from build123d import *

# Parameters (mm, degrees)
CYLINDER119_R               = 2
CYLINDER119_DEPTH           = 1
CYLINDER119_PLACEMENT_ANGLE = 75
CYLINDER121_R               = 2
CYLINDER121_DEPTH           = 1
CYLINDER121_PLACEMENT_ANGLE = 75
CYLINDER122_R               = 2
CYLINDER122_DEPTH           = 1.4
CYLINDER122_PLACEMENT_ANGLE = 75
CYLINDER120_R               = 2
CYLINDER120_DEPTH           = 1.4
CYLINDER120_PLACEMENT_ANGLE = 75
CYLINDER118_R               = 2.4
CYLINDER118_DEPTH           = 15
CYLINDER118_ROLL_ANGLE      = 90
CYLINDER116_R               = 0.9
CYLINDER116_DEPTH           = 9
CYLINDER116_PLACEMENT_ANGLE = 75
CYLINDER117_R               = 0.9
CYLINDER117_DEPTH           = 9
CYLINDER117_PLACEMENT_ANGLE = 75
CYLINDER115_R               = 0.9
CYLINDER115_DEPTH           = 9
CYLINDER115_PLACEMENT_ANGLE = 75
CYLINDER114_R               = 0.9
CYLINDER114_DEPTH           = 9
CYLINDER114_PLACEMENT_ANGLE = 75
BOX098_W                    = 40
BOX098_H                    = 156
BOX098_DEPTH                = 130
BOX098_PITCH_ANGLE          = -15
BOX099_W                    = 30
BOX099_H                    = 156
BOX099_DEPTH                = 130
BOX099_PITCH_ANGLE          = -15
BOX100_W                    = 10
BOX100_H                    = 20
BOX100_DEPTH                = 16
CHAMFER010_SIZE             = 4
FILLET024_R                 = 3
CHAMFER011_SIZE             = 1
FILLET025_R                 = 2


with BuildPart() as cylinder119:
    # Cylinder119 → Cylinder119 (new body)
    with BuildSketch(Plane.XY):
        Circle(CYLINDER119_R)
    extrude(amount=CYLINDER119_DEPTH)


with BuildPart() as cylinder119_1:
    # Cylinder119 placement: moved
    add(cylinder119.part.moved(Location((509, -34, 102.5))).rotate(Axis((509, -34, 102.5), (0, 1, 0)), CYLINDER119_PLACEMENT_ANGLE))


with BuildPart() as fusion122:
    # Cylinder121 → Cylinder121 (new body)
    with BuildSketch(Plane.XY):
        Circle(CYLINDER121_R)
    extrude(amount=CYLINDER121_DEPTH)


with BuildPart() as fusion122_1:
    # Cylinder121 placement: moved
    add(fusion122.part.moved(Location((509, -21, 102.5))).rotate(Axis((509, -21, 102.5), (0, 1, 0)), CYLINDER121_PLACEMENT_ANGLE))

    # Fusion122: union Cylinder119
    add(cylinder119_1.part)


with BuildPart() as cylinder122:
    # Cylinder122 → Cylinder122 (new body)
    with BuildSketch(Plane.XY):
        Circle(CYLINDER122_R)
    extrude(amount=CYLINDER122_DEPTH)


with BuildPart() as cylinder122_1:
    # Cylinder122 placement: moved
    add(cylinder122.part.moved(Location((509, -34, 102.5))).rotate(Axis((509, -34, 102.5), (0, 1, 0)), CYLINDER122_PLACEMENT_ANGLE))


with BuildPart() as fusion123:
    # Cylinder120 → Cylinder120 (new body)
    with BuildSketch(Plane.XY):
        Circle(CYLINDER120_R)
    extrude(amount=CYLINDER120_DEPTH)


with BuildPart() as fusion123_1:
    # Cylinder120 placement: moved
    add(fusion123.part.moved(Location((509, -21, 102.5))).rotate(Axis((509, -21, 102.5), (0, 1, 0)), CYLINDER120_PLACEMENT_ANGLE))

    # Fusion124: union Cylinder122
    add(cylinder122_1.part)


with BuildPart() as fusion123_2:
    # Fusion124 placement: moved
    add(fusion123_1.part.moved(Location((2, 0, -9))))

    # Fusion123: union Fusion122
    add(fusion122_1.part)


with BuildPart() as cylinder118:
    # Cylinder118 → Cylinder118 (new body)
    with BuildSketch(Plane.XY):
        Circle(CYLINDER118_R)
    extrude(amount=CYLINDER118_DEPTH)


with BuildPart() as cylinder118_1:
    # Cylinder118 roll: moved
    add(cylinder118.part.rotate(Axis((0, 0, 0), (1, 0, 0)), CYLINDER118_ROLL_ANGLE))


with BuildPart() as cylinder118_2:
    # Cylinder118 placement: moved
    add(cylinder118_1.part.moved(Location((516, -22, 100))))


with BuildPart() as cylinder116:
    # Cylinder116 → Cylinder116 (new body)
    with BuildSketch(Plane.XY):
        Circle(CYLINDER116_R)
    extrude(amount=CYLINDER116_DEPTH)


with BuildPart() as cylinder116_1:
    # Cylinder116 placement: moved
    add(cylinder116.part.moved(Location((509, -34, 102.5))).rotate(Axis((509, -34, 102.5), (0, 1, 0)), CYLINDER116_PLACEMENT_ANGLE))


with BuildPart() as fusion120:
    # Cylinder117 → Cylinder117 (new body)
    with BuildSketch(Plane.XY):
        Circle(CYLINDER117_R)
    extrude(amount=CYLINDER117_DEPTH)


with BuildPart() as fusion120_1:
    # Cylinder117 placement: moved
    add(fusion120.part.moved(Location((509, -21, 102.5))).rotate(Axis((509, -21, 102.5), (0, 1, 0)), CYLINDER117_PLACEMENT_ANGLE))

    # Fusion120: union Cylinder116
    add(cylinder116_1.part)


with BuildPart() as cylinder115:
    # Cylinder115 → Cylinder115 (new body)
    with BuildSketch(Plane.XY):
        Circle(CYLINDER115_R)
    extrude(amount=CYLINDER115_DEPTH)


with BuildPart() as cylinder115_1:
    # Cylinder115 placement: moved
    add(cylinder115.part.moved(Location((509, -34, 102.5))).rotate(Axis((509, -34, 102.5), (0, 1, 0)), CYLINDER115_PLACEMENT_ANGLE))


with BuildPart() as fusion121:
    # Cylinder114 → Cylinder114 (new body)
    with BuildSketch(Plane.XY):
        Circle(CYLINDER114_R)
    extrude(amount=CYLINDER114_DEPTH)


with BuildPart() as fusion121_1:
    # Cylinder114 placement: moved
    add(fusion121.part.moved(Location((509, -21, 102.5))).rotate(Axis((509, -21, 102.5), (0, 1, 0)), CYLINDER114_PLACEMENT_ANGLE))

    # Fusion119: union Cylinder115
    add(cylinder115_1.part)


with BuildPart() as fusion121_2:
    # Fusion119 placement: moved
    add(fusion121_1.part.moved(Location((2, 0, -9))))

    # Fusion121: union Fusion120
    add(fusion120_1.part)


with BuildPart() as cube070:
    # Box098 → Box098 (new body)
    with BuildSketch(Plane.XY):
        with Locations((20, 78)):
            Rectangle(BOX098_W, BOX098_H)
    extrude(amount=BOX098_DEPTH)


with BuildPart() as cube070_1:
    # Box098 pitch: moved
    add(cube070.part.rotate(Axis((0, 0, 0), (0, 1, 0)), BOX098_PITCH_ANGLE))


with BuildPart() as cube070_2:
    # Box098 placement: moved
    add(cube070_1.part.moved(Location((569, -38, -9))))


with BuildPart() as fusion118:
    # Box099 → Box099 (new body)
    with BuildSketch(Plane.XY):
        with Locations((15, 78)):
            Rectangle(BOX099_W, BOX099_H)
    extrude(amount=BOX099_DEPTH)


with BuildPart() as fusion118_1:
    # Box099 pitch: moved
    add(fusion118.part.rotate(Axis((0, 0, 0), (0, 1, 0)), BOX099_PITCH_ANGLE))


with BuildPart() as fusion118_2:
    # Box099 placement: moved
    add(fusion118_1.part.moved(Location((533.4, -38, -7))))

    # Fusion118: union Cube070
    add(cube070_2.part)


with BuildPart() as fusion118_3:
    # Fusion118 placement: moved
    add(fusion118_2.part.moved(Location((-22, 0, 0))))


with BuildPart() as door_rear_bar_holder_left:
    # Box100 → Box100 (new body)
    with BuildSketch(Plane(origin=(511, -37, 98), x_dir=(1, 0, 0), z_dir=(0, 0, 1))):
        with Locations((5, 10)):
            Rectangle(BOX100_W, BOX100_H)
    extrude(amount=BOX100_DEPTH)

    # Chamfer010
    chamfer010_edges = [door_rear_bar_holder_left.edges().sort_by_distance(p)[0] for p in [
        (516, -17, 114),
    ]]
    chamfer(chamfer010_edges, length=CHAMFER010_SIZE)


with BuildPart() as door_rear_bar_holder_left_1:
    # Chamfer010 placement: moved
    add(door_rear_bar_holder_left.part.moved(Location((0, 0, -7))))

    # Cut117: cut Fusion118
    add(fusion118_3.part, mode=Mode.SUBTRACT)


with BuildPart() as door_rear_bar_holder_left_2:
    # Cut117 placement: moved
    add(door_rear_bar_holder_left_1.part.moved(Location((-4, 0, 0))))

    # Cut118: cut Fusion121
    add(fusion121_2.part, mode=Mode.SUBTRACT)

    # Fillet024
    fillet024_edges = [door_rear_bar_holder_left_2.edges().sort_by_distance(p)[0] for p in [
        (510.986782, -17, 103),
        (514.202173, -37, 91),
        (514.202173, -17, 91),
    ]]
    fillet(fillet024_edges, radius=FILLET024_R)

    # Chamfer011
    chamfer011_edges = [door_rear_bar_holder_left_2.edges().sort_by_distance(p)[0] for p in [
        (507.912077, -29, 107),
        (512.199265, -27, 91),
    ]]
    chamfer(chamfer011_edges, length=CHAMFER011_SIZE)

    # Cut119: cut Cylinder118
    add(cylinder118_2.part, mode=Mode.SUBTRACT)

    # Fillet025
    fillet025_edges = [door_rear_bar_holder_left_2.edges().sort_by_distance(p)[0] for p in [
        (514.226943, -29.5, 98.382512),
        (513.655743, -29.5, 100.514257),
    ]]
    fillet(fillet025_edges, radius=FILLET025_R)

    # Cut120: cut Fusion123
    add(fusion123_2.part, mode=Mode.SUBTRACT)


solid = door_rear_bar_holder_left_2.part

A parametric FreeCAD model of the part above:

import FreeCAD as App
import Part
import Sketcher
from FreeCAD import Vector


def edges_at(feature, points):
    """Names of the edges that pass closest to the given points."""
    edges = feature.Shape.Edges
    near = lambda p: min(range(len(edges)), key=lambda i: edges[i].distToShape(Part.Vertex(*p))[0])
    return sorted({f"Edge{near(p) + 1}" for p in points})

doc = App.newDocument("Part")
body = doc.addObject("PartDesign::Body", "Body")

# Sketch on XY plane
sketch1 = doc.addObject("Sketcher::SketchObject", "Sketch")
body.addObject(sketch1)
sketch1.AttachmentSupport = (doc.XY_Plane, [""])
sketch1.MapMode = "FlatFace"
sketch1.addGeometry(Part.Circle(Vector(0, 0, 0), Vector(0, 0, 1), 2), False)
sketch1.addConstraint(Sketcher.Constraint("Coincident", 0, 3, -1, 1))
sketch1.addConstraint(Sketcher.Constraint("Diameter", 0, 4.0))
pad1 = doc.addObject("PartDesign::Pad", "Pad")
body.addObject(pad1)
pad1.Profile = sketch1
pad1.Length = 1
body2 = doc.addObject("PartDesign::Body", "Body001")
doc.recompute()

body.Placement = App.Placement(Vector(509, -34, 102.5), App.Rotation(Vector(0, 1, 0), 75))
boolean = doc.addObject("PartDesign::Boolean", "Boolean")
body2.addObject(boolean)
boolean.Type = "Fuse"
boolean.addObjects([body])
body3 = doc.addObject("PartDesign::Body", "Body002")

# Sketch on XY plane
sketch2 = doc.addObject("Sketcher::SketchObject", "Sketch001")
body3.addObject(sketch2)
sketch2.AttachmentSupport = (doc.getObject("XY_Plane002"), [""])
sketch2.MapMode = "FlatFace"
sketch2.addGeometry(Part.Circle(Vector(0, 0, 0), Vector(0, 0, 1), 2), False)
sketch2.addConstraint(Sketcher.Constraint("Coincident", 0, 3, -1, 1))
sketch2.addConstraint(Sketcher.Constraint("Diameter", 0, 4.0))
pad2 = doc.addObject("PartDesign::Pad", "Pad001")
body3.addObject(pad2)
pad2.Profile = sketch2
pad2.Length = 1
body4 = doc.addObject("PartDesign::Body", "Body003")
body4.AllowCompound = True
doc.recompute()

body3.Placement = App.Placement(Vector(509, -21, 102.5), App.Rotation(Vector(0, 1, 0), 75))
boolean2 = doc.addObject("PartDesign::Boolean", "Boolean001")
body4.addObject(boolean2)
boolean2.Type = "Fuse"
boolean2.addObjects([body3])
doc.recompute()

boolean3 = doc.addObject("PartDesign::Boolean", "Boolean002")
body4.addObject(boolean3)
boolean3.Type = "Fuse"
boolean3.addObjects([body2])
body5 = doc.addObject("PartDesign::Body", "Body004")

# Sketch on XY plane
sketch3 = doc.addObject("Sketcher::SketchObject", "Sketch002")
body5.addObject(sketch3)
sketch3.AttachmentSupport = (doc.getObject("XY_Plane004"), [""])
sketch3.MapMode = "FlatFace"
sketch3.addGeometry(Part.Circle(Vector(0, 0, 0), Vector(0, 0, 1), 2), False)
sketch3.addConstraint(Sketcher.Constraint("Coincident", 0, 3, -1, 1))
sketch3.addConstraint(Sketcher.Constraint("Diameter", 0, 4.0))
pad3 = doc.addObject("PartDesign::Pad", "Pad002")
body5.addObject(pad3)
pad3.Profile = sketch3
pad3.Length = 1.4
body6 = doc.addObject("PartDesign::Body", "Body005")
doc.recompute()

body5.Placement = App.Placement(Vector(509, -34, 102.5), App.Rotation(Vector(0, 1, 0), 75))
boolean4 = doc.addObject("PartDesign::Boolean", "Boolean003")
body6.addObject(boolean4)
boolean4.Type = "Fuse"
boolean4.addObjects([body5])
body7 = doc.addObject("PartDesign::Body", "Body006")

# Sketch on XY plane
sketch4 = doc.addObject("Sketcher::SketchObject", "Sketch003")
body7.addObject(sketch4)
sketch4.AttachmentSupport = (doc.getObject("XY_Plane006"), [""])
sketch4.MapMode = "FlatFace"
sketch4.addGeometry(Part.Circle(Vector(0, 0, 0), Vector(0, 0, 1), 2), False)
sketch4.addConstraint(Sketcher.Constraint("Coincident", 0, 3, -1, 1))
sketch4.addConstraint(Sketcher.Constraint("Diameter", 0, 4.0))
pad4 = doc.addObject("PartDesign::Pad", "Pad003")
body7.addObject(pad4)
pad4.Profile = sketch4
pad4.Length = 1.4
body8 = doc.addObject("PartDesign::Body", "Body007")
body8.AllowCompound = True
doc.recompute()

body7.Placement = App.Placement(Vector(509, -21, 102.5), App.Rotation(Vector(0, 1, 0), 75))
boolean5 = doc.addObject("PartDesign::Boolean", "Boolean004")
body8.addObject(boolean5)
boolean5.Type = "Fuse"
boolean5.addObjects([body7])
doc.recompute()

boolean6 = doc.addObject("PartDesign::Boolean", "Boolean005")
body8.addObject(boolean6)
boolean6.Type = "Fuse"
boolean6.addObjects([body6])
body9 = doc.addObject("PartDesign::Body", "Body008")
body9.AllowCompound = True
doc.recompute()

body8.Placement = App.Placement(Vector(2, 0, -9), App.Rotation(Vector(0, 0, 1), 0))
boolean7 = doc.addObject("PartDesign::Boolean", "Boolean006")
body9.addObject(boolean7)
boolean7.Type = "Fuse"
boolean7.addObjects([body8])
doc.recompute()

boolean8 = doc.addObject("PartDesign::Boolean", "Boolean007")
body9.addObject(boolean8)
boolean8.Type = "Fuse"
boolean8.addObjects([body4])
body10 = doc.addObject("PartDesign::Body", "Body009")

# Sketch on XY plane
sketch5 = doc.addObject("Sketcher::SketchObject", "Sketch004")
body10.addObject(sketch5)
sketch5.AttachmentSupport = (doc.getObject("XY_Plane009"), [""])
sketch5.MapMode = "FlatFace"
sketch5.addGeometry(Part.Circle(Vector(0, 0, 0), Vector(0, 0, 1), 2.4), False)
sketch5.addConstraint(Sketcher.Constraint("Coincident", 0, 3, -1, 1))
sketch5.addConstraint(Sketcher.Constraint("Diameter", 0, 4.8))
pad5 = doc.addObject("PartDesign::Pad", "Pad004")
body10.addObject(pad5)
pad5.Profile = sketch5
pad5.Length = 15
body11 = doc.addObject("PartDesign::Body", "Body010")
doc.recompute()

body10.Placement = App.Placement(Vector(0, 0, 0), App.Rotation(Vector(1, 0, 0), 90))
boolean9 = doc.addObject("PartDesign::Boolean", "Boolean008")
body11.addObject(boolean9)
boolean9.Type = "Fuse"
boolean9.addObjects([body10])
body12 = doc.addObject("PartDesign::Body", "Body011")
doc.recompute()

body11.Placement = App.Placement(Vector(516, -22, 100), App.Rotation(Vector(0, 0, 1), 0))
boolean10 = doc.addObject("PartDesign::Boolean", "Boolean009")
body12.addObject(boolean10)
boolean10.Type = "Fuse"
boolean10.addObjects([body11])
body13 = doc.addObject("PartDesign::Body", "Body012")

# Sketch on XY plane
sketch6 = doc.addObject("Sketcher::SketchObject", "Sketch005")
body13.addObject(sketch6)
sketch6.AttachmentSupport = (doc.getObject("XY_Plane012"), [""])
sketch6.MapMode = "FlatFace"
sketch6.addGeometry(Part.Circle(Vector(0, 0, 0), Vector(0, 0, 1), 0.9), False)
sketch6.addConstraint(Sketcher.Constraint("Coincident", 0, 3, -1, 1))
sketch6.addConstraint(Sketcher.Constraint("Diameter", 0, 1.8))
pad6 = doc.addObject("PartDesign::Pad", "Pad005")
body13.addObject(pad6)
pad6.Profile = sketch6
pad6.Length = 9
body14 = doc.addObject("PartDesign::Body", "Body013")
doc.recompute()

body13.Placement = App.Placement(Vector(509, -34, 102.5), App.Rotation(Vector(0, 1, 0), 75))
boolean11 = doc.addObject("PartDesign::Boolean", "Boolean010")
body14.addObject(boolean11)
boolean11.Type = "Fuse"
boolean11.addObjects([body13])
body15 = doc.addObject("PartDesign::Body", "Body014")

# Sketch on XY plane
sketch7 = doc.addObject("Sketcher::SketchObject", "Sketch006")
body15.addObject(sketch7)
sketch7.AttachmentSupport = (doc.getObject("XY_Plane014"), [""])
sketch7.MapMode = "FlatFace"
sketch7.addGeometry(Part.Circle(Vector(0, 0, 0), Vector(0, 0, 1), 0.9), False)
sketch7.addConstraint(Sketcher.Constraint("Coincident", 0, 3, -1, 1))
sketch7.addConstraint(Sketcher.Constraint("Diameter", 0, 1.8))
pad7 = doc.addObject("PartDesign::Pad", "Pad006")
body15.addObject(pad7)
pad7.Profile = sketch7
pad7.Length = 9
body16 = doc.addObject("PartDesign::Body", "Body015")
body16.AllowCompound = True
doc.recompute()

body15.Placement = App.Placement(Vector(509, -21, 102.5), App.Rotation(Vector(0, 1, 0), 75))
boolean12 = doc.addObject("PartDesign::Boolean", "Boolean011")
body16.addObject(boolean12)
boolean12.Type = "Fuse"
boolean12.addObjects([body15])
doc.recompute()

boolean13 = doc.addObject("PartDesign::Boolean", "Boolean012")
body16.addObject(boolean13)
boolean13.Type = "Fuse"
boolean13.addObjects([body14])
body17 = doc.addObject("PartDesign::Body", "Body016")

# Sketch on XY plane
sketch8 = doc.addObject("Sketcher::SketchObject", "Sketch007")
body17.addObject(sketch8)
sketch8.AttachmentSupport = (doc.getObject("XY_Plane016"), [""])
sketch8.MapMode = "FlatFace"
sketch8.addGeometry(Part.Circle(Vector(0, 0, 0), Vector(0, 0, 1), 0.9), False)
sketch8.addConstraint(Sketcher.Constraint("Coincident", 0, 3, -1, 1))
sketch8.addConstraint(Sketcher.Constraint("Diameter", 0, 1.8))
pad8 = doc.addObject("PartDesign::Pad", "Pad007")
body17.addObject(pad8)
pad8.Profile = sketch8
pad8.Length = 9
body18 = doc.addObject("PartDesign::Body", "Body017")
doc.recompute()

body17.Placement = App.Placement(Vector(509, -34, 102.5), App.Rotation(Vector(0, 1, 0), 75))
boolean14 = doc.addObject("PartDesign::Boolean", "Boolean013")
body18.addObject(boolean14)
boolean14.Type = "Fuse"
boolean14.addObjects([body17])
body19 = doc.addObject("PartDesign::Body", "Body018")

# Sketch on XY plane
sketch9 = doc.addObject("Sketcher::SketchObject", "Sketch008")
body19.addObject(sketch9)
sketch9.AttachmentSupport = (doc.getObject("XY_Plane018"), [""])
sketch9.MapMode = "FlatFace"
sketch9.addGeometry(Part.Circle(Vector(0, 0, 0), Vector(0, 0, 1), 0.9), False)
sketch9.addConstraint(Sketcher.Constraint("Coincident", 0, 3, -1, 1))
sketch9.addConstraint(Sketcher.Constraint("Diameter", 0, 1.8))
pad9 = doc.addObject("PartDesign::Pad", "Pad008")
body19.addObject(pad9)
pad9.Profile = sketch9
pad9.Length = 9
body20 = doc.addObject("PartDesign::Body", "Body019")
body20.AllowCompound = True
doc.recompute()

body19.Placement = App.Placement(Vector(509, -21, 102.5), App.Rotation(Vector(0, 1, 0), 75))
boolean15 = doc.addObject("PartDesign::Boolean", "Boolean014")
body20.addObject(boolean15)
boolean15.Type = "Fuse"
boolean15.addObjects([body19])
doc.recompute()

boolean16 = doc.addObject("PartDesign::Boolean", "Boolean015")
body20.addObject(boolean16)
boolean16.Type = "Fuse"
boolean16.addObjects([body18])
body21 = doc.addObject("PartDesign::Body", "Body020")
body21.AllowCompound = True
doc.recompute()

body20.Placement = App.Placement(Vector(2, 0, -9), App.Rotation(Vector(0, 0, 1), 0))
boolean17 = doc.addObject("PartDesign::Boolean", "Boolean016")
body21.addObject(boolean17)
boolean17.Type = "Fuse"
boolean17.addObjects([body20])
doc.recompute()

boolean18 = doc.addObject("PartDesign::Boolean", "Boolean017")
body21.addObject(boolean18)
boolean18.Type = "Fuse"
boolean18.addObjects([body16])
body22 = doc.addObject("PartDesign::Body", "Body021")

# Sketch on XY plane
sketch10 = doc.addObject("Sketcher::SketchObject", "Sketch009")
body22.addObject(sketch10)
sketch10.AttachmentSupport = (doc.getObject("XY_Plane021"), [""])
sketch10.MapMode = "FlatFace"
sketch10.addGeometry(Part.LineSegment(Vector(0, 156, 0), Vector(0, 0, 0)), False)
sketch10.addGeometry(Part.LineSegment(Vector(0, 0, 0), Vector(40, 0, 0)), False)
sketch10.addGeometry(Part.LineSegment(Vector(40, 0, 0), Vector(40, 156, 0)), False)
sketch10.addGeometry(Part.LineSegment(Vector(40, 156, 0), Vector(0, 156, 0)), False)
sketch10.addConstraint(Sketcher.Constraint("Coincident", 0, 2, 1, 1))
sketch10.addConstraint(Sketcher.Constraint("Coincident", 1, 2, 2, 1))
sketch10.addConstraint(Sketcher.Constraint("Coincident", 2, 2, 3, 1))
sketch10.addConstraint(Sketcher.Constraint("Coincident", 3, 2, 0, 1))
sketch10.addConstraint(Sketcher.Constraint("Vertical", 0))
sketch10.addConstraint(Sketcher.Constraint("Horizontal", 1))
sketch10.addConstraint(Sketcher.Constraint("Vertical", 2))
sketch10.addConstraint(Sketcher.Constraint("Horizontal", 3))
sketch10.addConstraint(Sketcher.Constraint("Coincident", 0, 2, -1, 1))
sketch10.addConstraint(Sketcher.Constraint("DistanceX", 1, 1, 1, 2, 40.0))
sketch10.addConstraint(Sketcher.Constraint("DistanceY", 0, 2, 0, 1, 156.0))
pad10 = doc.addObject("PartDesign::Pad", "Pad009")
body22.addObject(pad10)
pad10.Profile = sketch10
pad10.Length = 130
body23 = doc.addObject("PartDesign::Body", "Body022")
doc.recompute()

body22.Placement = App.Placement(Vector(0, 0, 0), App.Rotation(Vector(0, 1, 0), 345))
boolean19 = doc.addObject("PartDesign::Boolean", "Boolean018")
body23.addObject(boolean19)
boolean19.Type = "Fuse"
boolean19.addObjects([body22])
body24 = doc.addObject("PartDesign::Body", "Body023")
doc.recompute()

body23.Placement = App.Placement(Vector(569, -38, -9), App.Rotation(Vector(0, 0, 1), 0))
boolean20 = doc.addObject("PartDesign::Boolean", "Boolean019")
body24.addObject(boolean20)
boolean20.Type = "Fuse"
boolean20.addObjects([body23])
body25 = doc.addObject("PartDesign::Body", "Body024")

# Sketch on XY plane
sketch11 = doc.addObject("Sketcher::SketchObject", "Sketch010")
body25.addObject(sketch11)
sketch11.AttachmentSupport = (doc.getObject("XY_Plane024"), [""])
sketch11.MapMode = "FlatFace"
sketch11.addGeometry(Part.LineSegment(Vector(0, 156, 0), Vector(0, 0, 0)), False)
sketch11.addGeometry(Part.LineSegment(Vector(0, 0, 0), Vector(30, 0, 0)), False)
sketch11.addGeometry(Part.LineSegment(Vector(30, 0, 0), Vector(30, 156, 0)), False)
sketch11.addGeometry(Part.LineSegment(Vector(30, 156, 0), Vector(0, 156, 0)), False)
sketch11.addConstraint(Sketcher.Constraint("Coincident", 0, 2, 1, 1))
sketch11.addConstraint(Sketcher.Constraint("Coincident", 1, 2, 2, 1))
sketch11.addConstraint(Sketcher.Constraint("Coincident", 2, 2, 3, 1))
sketch11.addConstraint(Sketcher.Constraint("Coincident", 3, 2, 0, 1))
sketch11.addConstraint(Sketcher.Constraint("Vertical", 0))
sketch11.addConstraint(Sketcher.Constraint("Horizontal", 1))
sketch11.addConstraint(Sketcher.Constraint("Vertical", 2))
sketch11.addConstraint(Sketcher.Constraint("Horizontal", 3))
sketch11.addConstraint(Sketcher.Constraint("Coincident", 0, 2, -1, 1))
sketch11.addConstraint(Sketcher.Constraint("DistanceX", 1, 1, 1, 2, 30.0))
sketch11.addConstraint(Sketcher.Constraint("DistanceY", 0, 2, 0, 1, 156.0))
pad11 = doc.addObject("PartDesign::Pad", "Pad010")
body25.addObject(pad11)
pad11.Profile = sketch11
pad11.Length = 130
body26 = doc.addObject("PartDesign::Body", "Body025")
doc.recompute()

body25.Placement = App.Placement(Vector(0, 0, 0), App.Rotation(Vector(0, 1, 0), 345))
boolean21 = doc.addObject("PartDesign::Boolean", "Boolean020")
body26.addObject(boolean21)
boolean21.Type = "Fuse"
boolean21.addObjects([body25])
body27 = doc.addObject("PartDesign::Body", "Body026")
body27.AllowCompound = True
doc.recompute()

body26.Placement = App.Placement(Vector(533.4, -38, -7), App.Rotation(Vector(0, 0, 1), 0))
boolean22 = doc.addObject("PartDesign::Boolean", "Boolean021")
body27.addObject(boolean22)
boolean22.Type = "Fuse"
boolean22.addObjects([body26])
doc.recompute()

boolean23 = doc.addObject("PartDesign::Boolean", "Boolean022")
body27.addObject(boolean23)
boolean23.Type = "Fuse"
boolean23.addObjects([body24])
body28 = doc.addObject("PartDesign::Body", "Body027")
body28.AllowCompound = True
doc.recompute()

body27.Placement = App.Placement(Vector(-22, 0, 0), App.Rotation(Vector(0, 0, 1), 0))
boolean24 = doc.addObject("PartDesign::Boolean", "Boolean023")
body28.addObject(boolean24)
boolean24.Type = "Fuse"
boolean24.addObjects([body27])
body29 = doc.addObject("PartDesign::Body", "Body028")

# Sketch on XY plane
sketch12 = doc.addObject("Sketcher::SketchObject", "Sketch011")
body29.addObject(sketch12)
sketch12.AttachmentSupport = (doc.getObject("XY_Plane028"), [""])
sketch12.MapMode = "FlatFace"
sketch12.AttachmentOffset = App.Placement(Vector(0, 0, 98), App.Rotation())
sketch12.addGeometry(Part.LineSegment(Vector(511, -17, 0), Vector(511, -37, 0)), False)
sketch12.addGeometry(Part.LineSegment(Vector(511, -37, 0), Vector(521, -37, 0)), False)
sketch12.addGeometry(Part.LineSegment(Vector(521, -37, 0), Vector(521, -17, 0)), False)
sketch12.addGeometry(Part.LineSegment(Vector(521, -17, 0), Vector(511, -17, 0)), False)
sketch12.addConstraint(Sketcher.Constraint("Coincident", 0, 2, 1, 1))
sketch12.addConstraint(Sketcher.Constraint("Coincident", 1, 2, 2, 1))
sketch12.addConstraint(Sketcher.Constraint("Coincident", 2, 2, 3, 1))
sketch12.addConstraint(Sketcher.Constraint("Coincident", 3, 2, 0, 1))
sketch12.addConstraint(Sketcher.Constraint("Vertical", 0))
sketch12.addConstraint(Sketcher.Constraint("Horizontal", 1))
sketch12.addConstraint(Sketcher.Constraint("Vertical", 2))
sketch12.addConstraint(Sketcher.Constraint("Horizontal", 3))
sketch12.addConstraint(Sketcher.Constraint("DistanceX", 1, 1, 1, 2, 10.0))
sketch12.addConstraint(Sketcher.Constraint("DistanceY", 0, 2, 0, 1, 20.0))
sketch12.addConstraint(Sketcher.Constraint("DistanceX", -1, 1, 0, 2, 511.0))
sketch12.addConstraint(Sketcher.Constraint("DistanceY", 0, 2, -1, 1, 37.0))
pad12 = doc.addObject("PartDesign::Pad", "Pad011")
body29.addObject(pad12)
pad12.Profile = sketch12
pad12.Length = 16
doc.recompute()

chamfer = doc.addObject("PartDesign::Chamfer", "Chamfer")
body29.addObject(chamfer)
chamfer.Base = (pad12, edges_at(pad12, [(516, -17, 114)]))
chamfer.Size = 4
body30 = doc.addObject("PartDesign::Body", "Body029")
doc.recompute()

body29.Placement = App.Placement(Vector(0, 0, -7), App.Rotation(Vector(0, 0, 1), 0))
boolean25 = doc.addObject("PartDesign::Boolean", "Boolean024")
body30.addObject(boolean25)
boolean25.Type = "Fuse"
boolean25.addObjects([body29])
doc.recompute()

boolean26 = doc.addObject("PartDesign::Boolean", "Boolean025")
body30.addObject(boolean26)
boolean26.Type = "Cut"
boolean26.addObjects([body28])
body31 = doc.addObject("PartDesign::Body", "Body030")
doc.recompute()

body30.Placement = App.Placement(Vector(-4, 0, 0), App.Rotation(Vector(0, 0, 1), 0))
boolean27 = doc.addObject("PartDesign::Boolean", "Boolean026")
body31.addObject(boolean27)
boolean27.Type = "Fuse"
boolean27.addObjects([body30])
doc.recompute()

boolean28 = doc.addObject("PartDesign::Boolean", "Boolean027")
body31.addObject(boolean28)
boolean28.Type = "Cut"
boolean28.addObjects([body21])
doc.recompute()

fillet = doc.addObject("PartDesign::Fillet", "Fillet")
body31.addObject(fillet)
fillet.Base = (boolean28, edges_at(boolean28, [(510.987, -17, 103), (514.202, -37, 91), (514.202, -17, 91)]))
fillet.Radius = 3
doc.recompute()

chamfer2 = doc.addObject("PartDesign::Chamfer", "Chamfer001")
body31.addObject(chamfer2)
chamfer2.Base = (fillet, edges_at(fillet, [(507.912, -29, 107), (512.199, -27, 91)]))
chamfer2.Size = 1
doc.recompute()

boolean29 = doc.addObject("PartDesign::Boolean", "Boolean028")
body31.addObject(boolean29)
boolean29.Type = "Cut"
boolean29.addObjects([body12])
doc.recompute()

fillet2 = doc.addObject("PartDesign::Fillet", "Fillet001")
body31.addObject(fillet2)
fillet2.Base = (boolean29, edges_at(boolean29, [(514.227, -29.5, 98.383), (513.656, -29.5, 100.514)]))
fillet2.Radius = 2
doc.recompute()

boolean30 = doc.addObject("PartDesign::Boolean", "Boolean029")
body31.addObject(boolean30)
boolean30.Type = "Cut"
boolean30.addObjects([body9])

doc.recompute()
